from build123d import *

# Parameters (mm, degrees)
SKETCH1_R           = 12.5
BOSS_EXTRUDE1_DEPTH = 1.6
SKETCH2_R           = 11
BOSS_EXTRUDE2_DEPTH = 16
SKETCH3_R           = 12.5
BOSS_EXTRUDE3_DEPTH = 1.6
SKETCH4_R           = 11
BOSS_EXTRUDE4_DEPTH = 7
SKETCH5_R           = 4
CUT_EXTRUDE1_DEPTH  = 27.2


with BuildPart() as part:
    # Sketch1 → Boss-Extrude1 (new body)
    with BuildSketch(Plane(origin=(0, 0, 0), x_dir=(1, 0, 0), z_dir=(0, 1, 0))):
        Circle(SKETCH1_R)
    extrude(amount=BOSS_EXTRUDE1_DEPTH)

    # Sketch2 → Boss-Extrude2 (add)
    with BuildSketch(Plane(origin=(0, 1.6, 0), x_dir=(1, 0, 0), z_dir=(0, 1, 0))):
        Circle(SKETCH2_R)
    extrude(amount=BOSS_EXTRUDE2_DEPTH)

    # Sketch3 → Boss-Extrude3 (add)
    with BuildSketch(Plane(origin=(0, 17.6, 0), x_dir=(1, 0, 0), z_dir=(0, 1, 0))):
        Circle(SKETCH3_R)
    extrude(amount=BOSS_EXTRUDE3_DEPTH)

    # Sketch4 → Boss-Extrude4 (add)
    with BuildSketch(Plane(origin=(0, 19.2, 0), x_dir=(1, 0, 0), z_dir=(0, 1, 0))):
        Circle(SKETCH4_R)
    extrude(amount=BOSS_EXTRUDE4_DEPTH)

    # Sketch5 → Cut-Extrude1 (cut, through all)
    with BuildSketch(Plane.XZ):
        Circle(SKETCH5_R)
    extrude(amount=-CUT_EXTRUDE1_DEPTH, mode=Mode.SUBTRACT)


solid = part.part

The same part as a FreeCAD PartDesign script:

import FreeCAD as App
import Part
import Sketcher
from FreeCAD import Vector
Q = App.Units.Quantity

doc = App.newDocument("Part")
body = doc.addObject("PartDesign::Body", "Body")

# Sketch on XZ plane
sketch1 = body.newObject("Sketcher::SketchObject", "Sketch")
sketch1.AttachmentSupport = (doc.getObject("XZ_Plane"), [""])
sketch1.MapMode = "FlatFace"
sketch1.addGeometry(Part.Circle(Vector(0, 0, 0), Vector(0, 0, 1), 12), False)
sketch1.addConstraint([
    Sketcher.Constraint("Coincident", 0, 3, -1, 1),
    Sketcher.Constraint("Diameter", 0, Q("25 mm")),
])
pad1 = body.newObject("PartDesign::Pad", "Pad")
pad1.Profile = sketch1
pad1.Length = 1.6
pad1.Reversed = True

# Sketch on XZ plane
sketch2 = body.newObject("Sketcher::SketchObject", "Sketch001")
sketch2.AttachmentSupport = (doc.getObject("XZ_Plane"), [""])
sketch2.MapMode = "FlatFace"
sketch2.AttachmentOffset = App.Placement(Vector(0, 0, -1.6), App.Rotation())
sketch2.addGeometry(Part.Circle(Vector(0, 0, 0), Vector(0, 0, 1), 11), False)
sketch2.addConstraint([
    Sketcher.Constraint("Coincident", 0, 3, -1, 1),
    Sketcher.Constraint("Diameter", 0, Q("22 mm")),
])
pad2 = body.newObject("PartDesign::Pad", "Pad001")
pad2.Profile = sketch2
pad2.Length = 16
pad2.Reversed = True

# Sketch on XZ plane
sketch3 = body.newObject("Sketcher::SketchObject", "Sketch002")
sketch3.AttachmentSupport = (doc.getObject("XZ_Plane"), [""])
sketch3.MapMode = "FlatFace"
sketch3.AttachmentOffset = App.Placement(Vector(0, 0, -17.6), App.Rotation())
sketch3.addGeometry(Part.Circle(Vector(0, 0, 0), Vector(0, 0, 1), 12), False)
sketch3.addConstraint([
    Sketcher.Constraint("Coincident", 0, 3, -1, 1),
    Sketcher.Constraint("Diameter", 0, Q("25 mm")),
])
pad3 = body.newObject("PartDesign::Pad", "Pad002")
pad3.Profile = sketch3
pad3.Length = 1.6
pad3.Reversed = True

# Sketch on XZ plane
sketch4 = body.newObject("Sketcher::SketchObject", "Sketch003")
sketch4.AttachmentSupport = (doc.getObject("XZ_Plane"), [""])
sketch4.MapMode = "FlatFace"
sketch4.AttachmentOffset = App.Placement(Vector(0, 0, -19.2), App.Rotation())
sketch4.addGeometry(Part.Circle(Vector(0, 0, 0), Vector(0, 0, 1), 11), False)
sketch4.addConstraint([
    Sketcher.Constraint("Coincident", 0, 3, -1, 1),
    Sketcher.Constraint("Diameter", 0, Q("22 mm")),
])
pad4 = body.newObject("PartDesign::Pad", "Pad003")
pad4.Profile = sketch4
pad4.Length = 7
pad4.Reversed = True

# Sketch on XZ plane
sketch5 = body.newObject("Sketcher::SketchObject", "Sketch004")
sketch5.AttachmentSupport = (doc.getObject("XZ_Plane"), [""])
sketch5.MapMode = "FlatFace"
sketch5.addGeometry(Part.Circle(Vector(0, 0, 0), Vector(0, 0, 1), 4), False)
sketch5.addConstraint([
    Sketcher.Constraint("Coincident", 0, 3, -1, 1),
    Sketcher.Constraint("Diameter", 0, Q("8 mm")),
])
pocket1 = body.newObject("PartDesign::Pocket", "Pocket")
pocket1.Profile = sketch5
pocket1.Type = "ThroughAll"

doc.recompute()
